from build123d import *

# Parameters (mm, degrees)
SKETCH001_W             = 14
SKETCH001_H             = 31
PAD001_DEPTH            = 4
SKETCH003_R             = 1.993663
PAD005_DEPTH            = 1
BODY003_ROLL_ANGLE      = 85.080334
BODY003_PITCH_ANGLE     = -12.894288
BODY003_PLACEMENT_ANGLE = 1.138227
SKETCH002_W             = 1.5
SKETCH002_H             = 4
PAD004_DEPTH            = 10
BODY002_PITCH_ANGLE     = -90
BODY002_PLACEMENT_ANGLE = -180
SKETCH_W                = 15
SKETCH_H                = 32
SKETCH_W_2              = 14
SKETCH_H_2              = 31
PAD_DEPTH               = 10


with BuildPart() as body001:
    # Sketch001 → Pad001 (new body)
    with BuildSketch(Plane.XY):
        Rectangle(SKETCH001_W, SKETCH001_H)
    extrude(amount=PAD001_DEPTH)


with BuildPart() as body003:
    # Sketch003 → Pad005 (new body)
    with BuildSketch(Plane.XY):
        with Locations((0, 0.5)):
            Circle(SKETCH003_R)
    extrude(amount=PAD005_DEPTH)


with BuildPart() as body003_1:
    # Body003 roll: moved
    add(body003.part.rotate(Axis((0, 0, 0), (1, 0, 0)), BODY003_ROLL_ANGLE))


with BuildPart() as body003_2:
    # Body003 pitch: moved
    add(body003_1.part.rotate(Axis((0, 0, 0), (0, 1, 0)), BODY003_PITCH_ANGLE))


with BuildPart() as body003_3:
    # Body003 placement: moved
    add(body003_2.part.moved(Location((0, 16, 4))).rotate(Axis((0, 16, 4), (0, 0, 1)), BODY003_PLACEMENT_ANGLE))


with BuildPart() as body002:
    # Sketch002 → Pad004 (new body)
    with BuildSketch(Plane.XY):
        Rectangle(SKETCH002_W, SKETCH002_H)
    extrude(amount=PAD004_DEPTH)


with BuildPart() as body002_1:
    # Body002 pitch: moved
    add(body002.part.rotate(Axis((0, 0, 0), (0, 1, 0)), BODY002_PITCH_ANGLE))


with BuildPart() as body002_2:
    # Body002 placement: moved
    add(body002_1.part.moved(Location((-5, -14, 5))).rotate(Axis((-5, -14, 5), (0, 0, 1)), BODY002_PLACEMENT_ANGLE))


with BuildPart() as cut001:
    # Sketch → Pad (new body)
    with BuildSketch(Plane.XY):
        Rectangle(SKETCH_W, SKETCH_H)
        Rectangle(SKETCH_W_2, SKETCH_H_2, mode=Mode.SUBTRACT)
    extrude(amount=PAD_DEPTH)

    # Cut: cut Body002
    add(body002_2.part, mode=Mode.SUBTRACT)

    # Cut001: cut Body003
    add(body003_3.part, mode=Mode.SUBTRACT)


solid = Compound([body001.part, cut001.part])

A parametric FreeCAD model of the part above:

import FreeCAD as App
import Part
import Sketcher


def add_polygon(sketch, points):
    """Adds a closed chain of lines whose ends are joined by coincident constraints."""
    first, n = sketch.GeometryCount, len(points)
    for a, b in zip(points, points[1:] + points[:1]):
        sketch.addGeometry(Part.LineSegment(App.Vector(*a, 0), App.Vector(*b, 0)), False)
    for i in range(n):
        sketch.addConstraint(Sketcher.Constraint("Coincident", first + i, 2, first + (i + 1) % n, 1))

doc = App.newDocument("Part")
params = doc.addObject("Spreadsheet::Sheet", "Params")
for row, (alias, value) in enumerate([
    ("sketch1_width", "14 mm"),
    ("sketch1_height", "31 mm"),
    ("pad1_length", "4 mm"),
    ("pad2_length", "1 mm"),
    ("sketch3_height", "4 mm"),
    ("sketch3_width", "1.5 mm"),
    ("pad3_length", "10 mm"),
    ("sketch4_width", "15 mm"),
    ("sketch4_width2", "14 mm"),
    ("sketch4_height", "32 mm"),
    ("sketch4_height2", "31 mm"),
    ("pad4_length", "10 mm"),
], start=1):
    params.set(f"A{row}", alias)
    params.set(f"B{row}", "=" + value)
    params.setAlias(f"B{row}", alias)

body = doc.addObject("PartDesign::Body", "Body")

# Sketch on XY plane
sketch1 = body.newObject("Sketcher::SketchObject", "Sketch")
sketch1.AttachmentSupport = (doc.getObject("XY_Plane"), [""])
sketch1.MapMode = "FlatFace"
add_polygon(sketch1, [(-7, 16), (-7, -16), (7, -16), (7, 16)])  # lines 0-3
sketch1.addConstraint(Sketcher.Constraint("Vertical", 0))
sketch1.addConstraint(Sketcher.Constraint("Horizontal", 1))
sketch1.addConstraint(Sketcher.Constraint("Vertical", 2))
sketch1.addConstraint(Sketcher.Constraint("Horizontal", 3))
sketch1.addConstraint(Sketcher.Constraint("Symmetric", 0, 2, 2, 2, -1, 1))
sketch1.addConstraint(Sketcher.Constraint("DistanceX", 1, 1, 1, 2, 14.0))
sketch1.addConstraint(Sketcher.Constraint("DistanceY", 0, 2, 0, 1, 31.0))
sketch1.setExpression("Constraints[9]", "Params.sketch1_width")
sketch1.setExpression("Constraints[10]", "Params.sketch1_height")
pad1 = body.newObject("PartDesign::Pad", "Pad")
pad1.Profile = sketch1
pad1.setExpression("Length", "Params.pad1_length")
body2 = doc.addObject("PartDesign::Body", "Body001")

# Sketch on XY plane
sketch2 = body2.newObject("Sketcher::SketchObject", "Sketch001")
sketch2.AttachmentSupport = (doc.getObject("XY_Plane001"), [""])
sketch2.MapMode = "FlatFace"
sketch2.addGeometry(Part.Circle(App.Vector(0, 0.5, 0), App.Vector(0, 0, 1), 2), False)
sketch2.addConstraint(Sketcher.Constraint("PointOnObject", 0, 3, -2))
sketch2.addConstraint(Sketcher.Constraint("DistanceY", -1, 1, 0, 3, 0.5))
sketch2.addConstraint(Sketcher.Constraint("Diameter", 0, 3.987326))
pad2 = body2.newObject("PartDesign::Pad", "Pad001")
pad2.Profile = sketch2
pad2.setExpression("Length", "Params.pad2_length")
body3 = doc.addObject("PartDesign::Body", "Body002")
doc.recompute()

body2.Placement = App.Placement(App.Vector(0, 0, 0), App.Rotation(App.Vector(1, 0, 0), 85.080334))
boolean = body3.newObject("PartDesign::Boolean", "Boolean")
boolean.Type = "Fuse"
boolean.addObjects([body2])
body4 = doc.addObject("PartDesign::Body", "Body003")
doc.recompute()

body3.Placement = App.Placement(App.Vector(0, 0, 0), App.Rotation(App.Vector(0, 1, 0), 347.105712))
boolean2 = body4.newObject("PartDesign::Boolean", "Boolean001")
boolean2.Type = "Fuse"
boolean2.addObjects([body3])
body5 = doc.addObject("PartDesign::Body", "Body004")
doc.recompute()

body4.Placement = App.Placement(App.Vector(0, 16, 4), App.Rotation(App.Vector(0, 0, 1), 1.138227))
boolean3 = body5.newObject("PartDesign::Boolean", "Boolean002")
boolean3.Type = "Fuse"
boolean3.addObjects([body4])
body6 = doc.addObject("PartDesign::Body", "Body005")

# Sketch on XY plane
sketch3 = body6.newObject("Sketcher::SketchObject", "Sketch002")
sketch3.AttachmentSupport = (doc.getObject("XY_Plane005"), [""])
sketch3.MapMode = "FlatFace"
add_polygon(sketch3, [(-0.8, 2), (-0.8, -2), (0.8, -2), (0.8, 2)])  # lines 0-3
sketch3.addConstraint(Sketcher.Constraint("Vertical", 0))
sketch3.addConstraint(Sketcher.Constraint("Horizontal", 1))
sketch3.addConstraint(Sketcher.Constraint("Vertical", 2))
sketch3.addConstraint(Sketcher.Constraint("Horizontal", 3))
sketch3.addConstraint(Sketcher.Constraint("Symmetric", 0, 2, 2, 2, -1, 1))
sketch3.addConstraint(Sketcher.Constraint("DistanceY", 0, 2, 0, 1, 4.0))
sketch3.addConstraint(Sketcher.Constraint("DistanceX", 1, 1, 1, 2, 1.5))
sketch3.setExpression("Constraints[9]", "Params.sketch3_height")
sketch3.setExpression("Constraints[10]", "Params.sketch3_width")
pad3 = body6.newObject("PartDesign::Pad", "Pad002")
pad3.Profile = sketch3
pad3.setExpression("Length", "Params.pad3_length")
body7 = doc.addObject("PartDesign::Body", "Body006")
doc.recompute()

body6.Placement = App.Placement(App.Vector(0, 0, 0), App.Rotation(App.Vector(0, 1, 0), 270))
boolean4 = body7.newObject("PartDesign::Boolean", "Boolean003")
boolean4.Type = "Fuse"
boolean4.addObjects([body6])
body8 = doc.addObject("PartDesign::Body", "Body007")
doc.recompute()

body7.Placement = App.Placement(App.Vector(-5, -14, 5), App.Rotation(App.Vector(0, 0, 1), 180))
boolean5 = body8.newObject("PartDesign::Boolean", "Boolean004")
boolean5.Type = "Fuse"
boolean5.addObjects([body7])
body9 = doc.addObject("PartDesign::Body", "Body008")

# Sketch on XY plane
sketch4 = body9.newObject("Sketcher::SketchObject", "Sketch003")
sketch4.AttachmentSupport = (doc.getObject("XY_Plane008"), [""])
sketch4.MapMode = "FlatFace"
add_polygon(sketch4, [(-8, 16), (-8, -16), (8, -16), (8, 16)])  # lines 0-3
add_polygon(sketch4, [(7, -16), (-7, -16), (-7, 16), (7, 16)])  # lines 4-7
sketch4.addConstraint(Sketcher.Constraint("Vertical", 0))
sketch4.addConstraint(Sketcher.Constraint("Horizontal", 1))
sketch4.addConstraint(Sketcher.Constraint("Vertical", 2))
sketch4.addConstraint(Sketcher.Constraint("Horizontal", 3))
sketch4.addConstraint(Sketcher.Constraint("Horizontal", 4))
sketch4.addConstraint(Sketcher.Constraint("Vertical", 5))
sketch4.addConstraint(Sketcher.Constraint("Horizontal", 6))
sketch4.addConstraint(Sketcher.Constraint("Vertical", 7))
sketch4.addConstraint(Sketcher.Constraint("Symmetric", 0, 2, 2, 2, -1, 1))
sketch4.addConstraint(Sketcher.Constraint("Symmetric", 4, 2, 6, 2, -1, 1))
sketch4.addConstraint(Sketcher.Constraint("DistanceX", 1, 1, 1, 2, 15.0))
sketch4.addConstraint(Sketcher.Constraint("DistanceX", 4, 2, 4, 1, 14.0))
sketch4.addConstraint(Sketcher.Constraint("DistanceY", 0, 2, 0, 1, 32.0))
sketch4.addConstraint(Sketcher.Constraint("DistanceY", 5, 1, 5, 2, 31.0))
sketch4.setExpression("Constraints[18]", "Params.sketch4_width")
sketch4.setExpression("Constraints[19]", "Params.sketch4_width2")
sketch4.setExpression("Constraints[20]", "Params.sketch4_height")
sketch4.setExpression("Constraints[21]", "Params.sketch4_height2")
pad4 = body9.newObject("PartDesign::Pad", "Pad003")
pad4.Profile = sketch4
pad4.setExpression("Length", "Params.pad4_length")
doc.recompute()

boolean6 = body9.newObject("PartDesign::Boolean", "Boolean005")
boolean6.Type = "Cut"
boolean6.addObjects([body8])
doc.recompute()

boolean7 = body9.newObject("PartDesign::Boolean", "Boolean006")
boolean7.Type = "Cut"
boolean7.addObjects([body5])

doc.recompute()
